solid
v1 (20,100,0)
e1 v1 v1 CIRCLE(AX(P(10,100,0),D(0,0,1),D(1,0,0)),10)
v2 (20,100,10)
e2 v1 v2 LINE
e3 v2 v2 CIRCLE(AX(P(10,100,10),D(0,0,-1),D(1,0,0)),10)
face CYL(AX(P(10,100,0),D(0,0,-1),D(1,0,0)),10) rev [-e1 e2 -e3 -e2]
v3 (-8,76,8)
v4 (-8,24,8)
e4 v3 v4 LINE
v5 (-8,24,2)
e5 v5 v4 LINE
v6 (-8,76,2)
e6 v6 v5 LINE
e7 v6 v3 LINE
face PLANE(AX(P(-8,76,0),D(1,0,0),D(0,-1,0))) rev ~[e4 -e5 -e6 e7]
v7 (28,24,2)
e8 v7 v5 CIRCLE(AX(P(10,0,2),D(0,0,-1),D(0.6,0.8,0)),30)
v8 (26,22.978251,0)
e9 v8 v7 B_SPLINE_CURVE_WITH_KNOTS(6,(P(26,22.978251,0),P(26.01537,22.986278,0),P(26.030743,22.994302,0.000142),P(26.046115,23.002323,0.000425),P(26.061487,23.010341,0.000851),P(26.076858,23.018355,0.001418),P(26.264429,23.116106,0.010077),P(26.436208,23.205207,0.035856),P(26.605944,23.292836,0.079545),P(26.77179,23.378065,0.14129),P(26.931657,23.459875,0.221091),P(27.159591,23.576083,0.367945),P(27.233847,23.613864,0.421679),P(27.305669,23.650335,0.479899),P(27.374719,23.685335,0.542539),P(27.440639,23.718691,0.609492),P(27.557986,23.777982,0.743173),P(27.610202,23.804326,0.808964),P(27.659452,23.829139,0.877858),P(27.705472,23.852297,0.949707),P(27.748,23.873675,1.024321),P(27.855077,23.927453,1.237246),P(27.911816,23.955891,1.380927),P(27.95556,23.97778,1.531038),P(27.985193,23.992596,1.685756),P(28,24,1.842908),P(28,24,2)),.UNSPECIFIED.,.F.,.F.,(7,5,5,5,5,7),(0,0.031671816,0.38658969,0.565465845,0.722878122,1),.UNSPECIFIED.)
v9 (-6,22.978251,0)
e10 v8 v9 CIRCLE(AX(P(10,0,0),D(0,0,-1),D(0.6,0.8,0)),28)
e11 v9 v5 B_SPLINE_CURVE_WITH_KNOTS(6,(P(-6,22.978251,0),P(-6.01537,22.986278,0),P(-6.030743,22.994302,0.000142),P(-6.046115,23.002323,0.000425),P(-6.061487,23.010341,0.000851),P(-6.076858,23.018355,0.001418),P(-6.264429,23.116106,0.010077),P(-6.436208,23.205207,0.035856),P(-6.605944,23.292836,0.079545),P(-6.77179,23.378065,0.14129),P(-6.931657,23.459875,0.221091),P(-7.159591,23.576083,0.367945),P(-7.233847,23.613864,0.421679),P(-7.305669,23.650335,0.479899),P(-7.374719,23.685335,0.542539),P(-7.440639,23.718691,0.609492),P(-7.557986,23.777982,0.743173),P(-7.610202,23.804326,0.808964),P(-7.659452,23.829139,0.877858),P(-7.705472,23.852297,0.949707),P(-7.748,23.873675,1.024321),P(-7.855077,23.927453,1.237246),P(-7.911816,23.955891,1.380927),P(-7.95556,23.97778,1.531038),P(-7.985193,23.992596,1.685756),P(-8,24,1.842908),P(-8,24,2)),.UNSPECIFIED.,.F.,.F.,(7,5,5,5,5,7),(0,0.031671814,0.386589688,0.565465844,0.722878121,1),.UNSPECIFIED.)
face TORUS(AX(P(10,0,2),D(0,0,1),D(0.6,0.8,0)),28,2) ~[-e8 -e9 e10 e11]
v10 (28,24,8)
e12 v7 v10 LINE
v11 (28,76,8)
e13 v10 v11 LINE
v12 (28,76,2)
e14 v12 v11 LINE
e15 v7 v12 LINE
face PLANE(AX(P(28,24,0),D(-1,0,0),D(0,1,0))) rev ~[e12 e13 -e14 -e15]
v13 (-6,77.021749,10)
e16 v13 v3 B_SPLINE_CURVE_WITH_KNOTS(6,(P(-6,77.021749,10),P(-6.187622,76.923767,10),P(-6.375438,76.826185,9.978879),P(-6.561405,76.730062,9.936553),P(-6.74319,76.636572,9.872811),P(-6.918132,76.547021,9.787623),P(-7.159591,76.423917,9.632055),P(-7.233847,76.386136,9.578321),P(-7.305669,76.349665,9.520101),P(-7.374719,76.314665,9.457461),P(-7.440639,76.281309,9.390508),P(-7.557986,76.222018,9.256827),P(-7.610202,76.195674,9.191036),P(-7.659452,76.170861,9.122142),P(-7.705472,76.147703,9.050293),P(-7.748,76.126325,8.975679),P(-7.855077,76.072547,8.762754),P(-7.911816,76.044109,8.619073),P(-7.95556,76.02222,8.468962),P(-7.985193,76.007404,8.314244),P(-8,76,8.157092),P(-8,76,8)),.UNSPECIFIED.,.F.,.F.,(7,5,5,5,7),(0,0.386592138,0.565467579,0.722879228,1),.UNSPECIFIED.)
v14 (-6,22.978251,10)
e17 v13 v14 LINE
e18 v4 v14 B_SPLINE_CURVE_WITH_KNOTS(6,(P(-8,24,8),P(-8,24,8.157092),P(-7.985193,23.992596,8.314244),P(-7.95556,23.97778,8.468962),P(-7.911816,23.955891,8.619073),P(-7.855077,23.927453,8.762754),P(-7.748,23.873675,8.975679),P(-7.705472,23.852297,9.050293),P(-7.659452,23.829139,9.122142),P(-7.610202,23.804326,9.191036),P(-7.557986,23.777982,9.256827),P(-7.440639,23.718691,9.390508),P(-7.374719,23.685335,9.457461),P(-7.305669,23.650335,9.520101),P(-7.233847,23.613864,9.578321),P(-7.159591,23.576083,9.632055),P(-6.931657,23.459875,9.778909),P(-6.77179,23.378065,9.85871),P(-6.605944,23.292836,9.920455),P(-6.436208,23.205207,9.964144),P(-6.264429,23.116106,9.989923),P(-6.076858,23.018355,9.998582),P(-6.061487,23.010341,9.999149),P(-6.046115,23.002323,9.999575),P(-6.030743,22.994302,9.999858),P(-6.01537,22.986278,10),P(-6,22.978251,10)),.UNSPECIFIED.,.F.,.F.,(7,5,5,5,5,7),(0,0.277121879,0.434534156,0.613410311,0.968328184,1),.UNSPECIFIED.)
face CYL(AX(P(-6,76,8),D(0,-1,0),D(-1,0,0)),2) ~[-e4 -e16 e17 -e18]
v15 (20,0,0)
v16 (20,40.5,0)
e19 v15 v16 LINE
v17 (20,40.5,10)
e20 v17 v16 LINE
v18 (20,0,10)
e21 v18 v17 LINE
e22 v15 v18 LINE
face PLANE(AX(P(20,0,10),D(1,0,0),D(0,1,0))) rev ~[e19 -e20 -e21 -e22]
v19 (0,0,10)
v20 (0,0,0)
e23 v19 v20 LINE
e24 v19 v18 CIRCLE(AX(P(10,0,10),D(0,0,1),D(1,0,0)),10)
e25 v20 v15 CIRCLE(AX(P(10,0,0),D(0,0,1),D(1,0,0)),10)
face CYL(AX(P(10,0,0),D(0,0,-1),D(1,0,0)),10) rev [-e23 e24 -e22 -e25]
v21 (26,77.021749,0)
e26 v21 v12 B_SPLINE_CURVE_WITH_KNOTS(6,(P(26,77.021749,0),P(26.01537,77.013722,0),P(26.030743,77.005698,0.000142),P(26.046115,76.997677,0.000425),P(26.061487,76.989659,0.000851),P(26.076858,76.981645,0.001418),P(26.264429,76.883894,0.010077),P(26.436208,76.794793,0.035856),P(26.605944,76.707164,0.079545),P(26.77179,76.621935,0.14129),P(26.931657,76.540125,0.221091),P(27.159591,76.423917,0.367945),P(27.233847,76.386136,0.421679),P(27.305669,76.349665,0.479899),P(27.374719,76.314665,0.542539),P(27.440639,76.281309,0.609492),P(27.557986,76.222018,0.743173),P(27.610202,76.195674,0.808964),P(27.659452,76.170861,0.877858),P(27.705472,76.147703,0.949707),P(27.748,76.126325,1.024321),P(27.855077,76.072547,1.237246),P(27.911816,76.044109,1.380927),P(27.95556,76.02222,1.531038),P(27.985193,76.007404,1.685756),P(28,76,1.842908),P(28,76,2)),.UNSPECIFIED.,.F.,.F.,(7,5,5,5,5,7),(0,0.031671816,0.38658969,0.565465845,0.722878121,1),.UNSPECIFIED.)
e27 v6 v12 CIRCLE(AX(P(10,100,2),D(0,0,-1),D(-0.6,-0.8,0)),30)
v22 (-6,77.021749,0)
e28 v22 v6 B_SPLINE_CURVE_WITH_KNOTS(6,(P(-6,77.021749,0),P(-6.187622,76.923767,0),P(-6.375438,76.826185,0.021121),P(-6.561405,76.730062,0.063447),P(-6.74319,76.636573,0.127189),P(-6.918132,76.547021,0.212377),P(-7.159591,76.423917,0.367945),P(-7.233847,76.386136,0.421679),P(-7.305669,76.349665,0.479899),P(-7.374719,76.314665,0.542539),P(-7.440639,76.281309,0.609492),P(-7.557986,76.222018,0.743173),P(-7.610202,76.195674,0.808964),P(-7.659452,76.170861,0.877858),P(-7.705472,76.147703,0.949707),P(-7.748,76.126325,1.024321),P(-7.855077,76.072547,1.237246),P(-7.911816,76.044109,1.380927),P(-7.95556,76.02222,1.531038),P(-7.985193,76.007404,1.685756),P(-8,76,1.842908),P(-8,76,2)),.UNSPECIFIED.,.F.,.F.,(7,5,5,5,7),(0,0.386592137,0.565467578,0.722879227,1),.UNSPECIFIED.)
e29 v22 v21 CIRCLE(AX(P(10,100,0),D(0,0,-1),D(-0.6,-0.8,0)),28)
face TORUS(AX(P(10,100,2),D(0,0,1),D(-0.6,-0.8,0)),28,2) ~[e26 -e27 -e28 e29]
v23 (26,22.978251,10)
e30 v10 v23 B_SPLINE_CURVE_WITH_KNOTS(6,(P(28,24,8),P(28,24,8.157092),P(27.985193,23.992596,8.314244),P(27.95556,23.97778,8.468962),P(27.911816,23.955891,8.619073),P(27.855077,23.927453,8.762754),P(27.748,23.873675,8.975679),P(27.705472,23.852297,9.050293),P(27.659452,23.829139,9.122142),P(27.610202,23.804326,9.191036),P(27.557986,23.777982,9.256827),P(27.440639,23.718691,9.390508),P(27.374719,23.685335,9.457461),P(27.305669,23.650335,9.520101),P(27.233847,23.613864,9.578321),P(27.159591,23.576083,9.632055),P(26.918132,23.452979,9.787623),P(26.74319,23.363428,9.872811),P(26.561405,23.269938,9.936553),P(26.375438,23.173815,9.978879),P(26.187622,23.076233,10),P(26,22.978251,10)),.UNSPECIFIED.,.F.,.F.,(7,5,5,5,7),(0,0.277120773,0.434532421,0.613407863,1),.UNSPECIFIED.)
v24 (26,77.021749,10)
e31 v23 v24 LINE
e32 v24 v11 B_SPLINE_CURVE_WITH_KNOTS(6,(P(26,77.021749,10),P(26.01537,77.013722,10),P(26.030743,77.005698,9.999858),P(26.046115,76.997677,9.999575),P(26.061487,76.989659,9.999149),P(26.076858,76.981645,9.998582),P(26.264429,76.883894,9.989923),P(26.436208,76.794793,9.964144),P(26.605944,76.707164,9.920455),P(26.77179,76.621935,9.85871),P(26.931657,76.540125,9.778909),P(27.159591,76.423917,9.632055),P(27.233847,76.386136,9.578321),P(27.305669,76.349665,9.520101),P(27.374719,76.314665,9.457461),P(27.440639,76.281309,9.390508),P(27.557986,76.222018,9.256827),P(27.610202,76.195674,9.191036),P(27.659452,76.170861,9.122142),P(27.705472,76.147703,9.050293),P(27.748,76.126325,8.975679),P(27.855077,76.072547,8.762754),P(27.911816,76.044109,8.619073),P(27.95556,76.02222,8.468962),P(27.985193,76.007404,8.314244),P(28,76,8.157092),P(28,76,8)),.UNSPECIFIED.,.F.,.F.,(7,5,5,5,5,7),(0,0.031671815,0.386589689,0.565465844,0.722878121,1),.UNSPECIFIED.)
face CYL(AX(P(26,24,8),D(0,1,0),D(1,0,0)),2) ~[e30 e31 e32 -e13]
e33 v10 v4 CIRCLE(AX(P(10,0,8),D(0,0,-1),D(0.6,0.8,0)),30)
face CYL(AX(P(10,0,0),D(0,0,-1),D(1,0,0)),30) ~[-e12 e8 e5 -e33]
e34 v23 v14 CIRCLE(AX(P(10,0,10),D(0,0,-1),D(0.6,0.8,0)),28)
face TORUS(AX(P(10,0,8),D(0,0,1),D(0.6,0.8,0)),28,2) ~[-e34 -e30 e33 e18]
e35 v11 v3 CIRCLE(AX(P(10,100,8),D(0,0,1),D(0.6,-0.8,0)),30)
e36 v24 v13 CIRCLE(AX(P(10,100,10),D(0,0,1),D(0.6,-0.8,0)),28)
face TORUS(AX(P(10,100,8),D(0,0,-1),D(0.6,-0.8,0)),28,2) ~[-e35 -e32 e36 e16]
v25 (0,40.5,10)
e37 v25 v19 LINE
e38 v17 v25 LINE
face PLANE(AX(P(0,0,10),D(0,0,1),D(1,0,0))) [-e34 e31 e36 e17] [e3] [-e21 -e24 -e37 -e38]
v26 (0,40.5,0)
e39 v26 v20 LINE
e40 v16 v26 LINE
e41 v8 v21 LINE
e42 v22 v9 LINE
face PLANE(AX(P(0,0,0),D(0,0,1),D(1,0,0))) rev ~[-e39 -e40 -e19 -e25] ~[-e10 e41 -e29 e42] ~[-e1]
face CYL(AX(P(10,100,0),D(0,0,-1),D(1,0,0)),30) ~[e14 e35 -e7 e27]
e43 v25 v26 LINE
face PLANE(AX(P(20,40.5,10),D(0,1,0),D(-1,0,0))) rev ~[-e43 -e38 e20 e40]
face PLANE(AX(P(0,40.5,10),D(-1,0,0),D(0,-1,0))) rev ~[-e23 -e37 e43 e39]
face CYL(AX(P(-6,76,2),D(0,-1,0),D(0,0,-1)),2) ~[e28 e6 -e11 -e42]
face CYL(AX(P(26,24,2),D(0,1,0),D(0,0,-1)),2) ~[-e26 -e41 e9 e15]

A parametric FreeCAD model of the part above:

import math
import FreeCAD as App
import Part
import Sketcher


def edges_at(feature, points):
    """Names of the edges that pass closest to the given points."""
    edges = feature.Shape.Edges
    near = lambda p: min(range(len(edges)), key=lambda i: edges[i].distToShape(Part.Vertex(*p))[0])
    return sorted({f"Edge{near(p) + 1}" for p in points})

doc = App.newDocument("Part")
body = doc.addObject("PartDesign::Body", "Body")

# Sketch on XY plane
sketch1 = body.newObject("Sketcher::SketchObject", "Sketch")
sketch1.AttachmentSupport = (doc.getObject("XY_Plane"), [""])
sketch1.MapMode = "FlatFace"
sketch1.addGeometry([
    Part.LineSegment(App.Vector(28, 24, 0), App.Vector(28, 76, 0)),  # 0
    Part.ArcOfCircle(Part.Circle(App.Vector(10, 100, 0), App.Vector(0, 0, 1), 30), math.radians(-53.130102), math.radians(233.130102)),  # 1
    Part.LineSegment(App.Vector(-8, 76, 0), App.Vector(-8, 24, 0)),  # 2
    Part.ArcOfCircle(Part.Circle(App.Vector(10, 0, 0), App.Vector(0, 0, 1), 30), math.radians(126.869898), math.radians(413.130102)),  # 3
    Part.Circle(App.Vector(10, 0, 0), App.Vector(0, 0, 1), 10),  # 4
    Part.Circle(App.Vector(10, 100, 0), App.Vector(0, 0, 1), 10),  # 5
], False)
sketch1.addConstraint([
    Sketcher.Constraint("Coincident", 0, 2, 1, 1),
    Sketcher.Constraint("Coincident", 1, 2, 2, 1),
    Sketcher.Constraint("Coincident", 2, 2, 3, 1),
    Sketcher.Constraint("Coincident", 3, 2, 0, 1),
    Sketcher.Constraint("Vertical", 0),
    Sketcher.Constraint("Vertical", 2),
    Sketcher.Constraint("Coincident", 4, 3, 3, 3),
    Sketcher.Constraint("Coincident", 5, 3, 1, 3),
    Sketcher.Constraint("Equal", 1, 3),
    Sketcher.Constraint("Equal", 4, 5),
    Sketcher.Constraint("PointOnObject", 3, 3, -1),
    Sketcher.Constraint("Horizontal", 0, 2, 1, 2),
    Sketcher.Constraint("Horizontal", 2, 2, 3, 2),
    Sketcher.Constraint("Diameter", 4, 20.0),
    Sketcher.Constraint("Radius", 1, 30.0),
    Sketcher.Constraint("DistanceY", -1, 1, 1, 3, 100.0),
    Sketcher.Constraint("DistanceX", 1, 2, 0, 2, 36.0),
    Sketcher.Constraint("DistanceX", -1, 1, 1, 3, 10.0),
])
pad1 = body.newObject("PartDesign::Pad", "Pad")
pad1.Profile = sketch1
pad1.Length = 10
doc.recompute()

fillet = body.newObject("PartDesign::Fillet", "Fillet")
fillet.Base = (pad1, edges_at(pad1, [
    (10, 130, 10),
    (28, 50, 10),
    (-8, 50, 10),
    (10, -30, 10),
    (10, 130, 0),
    (28, 50, 0),
    (10, -30, 0),
    (-8, 50, 0),
]))
fillet.Radius = 2

# Sketch on XY plane
sketch2 = body.newObject("Sketcher::SketchObject", "Sketch001")
sketch2.AttachmentSupport = (doc.getObject("XY_Plane"), [""])
sketch2.MapMode = "FlatFace"
sketch2.AttachmentOffset = App.Placement(App.Vector(0, 0, 10), App.Rotation())
sketch2.addGeometry([
    Part.LineSegment(App.Vector(0, 40.5, 0), App.Vector(0, 0, 0)),
    Part.LineSegment(App.Vector(0, 0, 0), App.Vector(20, 0, 0)),
    Part.LineSegment(App.Vector(20, 0, 0), App.Vector(20, 40.5, 0)),
    Part.LineSegment(App.Vector(20, 40.5, 0), App.Vector(0, 40.5, 0)),
], False)
sketch2.addConstraint([
    Sketcher.Constraint("Coincident", 0, 2, 1, 1),
    Sketcher.Constraint("Coincident", 1, 2, 2, 1),
    Sketcher.Constraint("Coincident", 2, 2, 3, 1),
    Sketcher.Constraint("Coincident", 3, 2, 0, 1),
    Sketcher.Constraint("Vertical", 0),
    Sketcher.Constraint("Horizontal", 1),
    Sketcher.Constraint("Vertical", 2),
    Sketcher.Constraint("Horizontal", 3),
    Sketcher.Constraint("Coincident", 0, 2, -1, 1),
    Sketcher.Constraint("DistanceX", 1, 1, 1, 2, 20.0),
    Sketcher.Constraint("DistanceY", 0, 2, 0, 1, 40.5),
])
pocket1 = body.newObject("PartDesign::Pocket", "Pocket")
pocket1.Profile = sketch2
pocket1.Length = 10.6375

doc.recompute()
